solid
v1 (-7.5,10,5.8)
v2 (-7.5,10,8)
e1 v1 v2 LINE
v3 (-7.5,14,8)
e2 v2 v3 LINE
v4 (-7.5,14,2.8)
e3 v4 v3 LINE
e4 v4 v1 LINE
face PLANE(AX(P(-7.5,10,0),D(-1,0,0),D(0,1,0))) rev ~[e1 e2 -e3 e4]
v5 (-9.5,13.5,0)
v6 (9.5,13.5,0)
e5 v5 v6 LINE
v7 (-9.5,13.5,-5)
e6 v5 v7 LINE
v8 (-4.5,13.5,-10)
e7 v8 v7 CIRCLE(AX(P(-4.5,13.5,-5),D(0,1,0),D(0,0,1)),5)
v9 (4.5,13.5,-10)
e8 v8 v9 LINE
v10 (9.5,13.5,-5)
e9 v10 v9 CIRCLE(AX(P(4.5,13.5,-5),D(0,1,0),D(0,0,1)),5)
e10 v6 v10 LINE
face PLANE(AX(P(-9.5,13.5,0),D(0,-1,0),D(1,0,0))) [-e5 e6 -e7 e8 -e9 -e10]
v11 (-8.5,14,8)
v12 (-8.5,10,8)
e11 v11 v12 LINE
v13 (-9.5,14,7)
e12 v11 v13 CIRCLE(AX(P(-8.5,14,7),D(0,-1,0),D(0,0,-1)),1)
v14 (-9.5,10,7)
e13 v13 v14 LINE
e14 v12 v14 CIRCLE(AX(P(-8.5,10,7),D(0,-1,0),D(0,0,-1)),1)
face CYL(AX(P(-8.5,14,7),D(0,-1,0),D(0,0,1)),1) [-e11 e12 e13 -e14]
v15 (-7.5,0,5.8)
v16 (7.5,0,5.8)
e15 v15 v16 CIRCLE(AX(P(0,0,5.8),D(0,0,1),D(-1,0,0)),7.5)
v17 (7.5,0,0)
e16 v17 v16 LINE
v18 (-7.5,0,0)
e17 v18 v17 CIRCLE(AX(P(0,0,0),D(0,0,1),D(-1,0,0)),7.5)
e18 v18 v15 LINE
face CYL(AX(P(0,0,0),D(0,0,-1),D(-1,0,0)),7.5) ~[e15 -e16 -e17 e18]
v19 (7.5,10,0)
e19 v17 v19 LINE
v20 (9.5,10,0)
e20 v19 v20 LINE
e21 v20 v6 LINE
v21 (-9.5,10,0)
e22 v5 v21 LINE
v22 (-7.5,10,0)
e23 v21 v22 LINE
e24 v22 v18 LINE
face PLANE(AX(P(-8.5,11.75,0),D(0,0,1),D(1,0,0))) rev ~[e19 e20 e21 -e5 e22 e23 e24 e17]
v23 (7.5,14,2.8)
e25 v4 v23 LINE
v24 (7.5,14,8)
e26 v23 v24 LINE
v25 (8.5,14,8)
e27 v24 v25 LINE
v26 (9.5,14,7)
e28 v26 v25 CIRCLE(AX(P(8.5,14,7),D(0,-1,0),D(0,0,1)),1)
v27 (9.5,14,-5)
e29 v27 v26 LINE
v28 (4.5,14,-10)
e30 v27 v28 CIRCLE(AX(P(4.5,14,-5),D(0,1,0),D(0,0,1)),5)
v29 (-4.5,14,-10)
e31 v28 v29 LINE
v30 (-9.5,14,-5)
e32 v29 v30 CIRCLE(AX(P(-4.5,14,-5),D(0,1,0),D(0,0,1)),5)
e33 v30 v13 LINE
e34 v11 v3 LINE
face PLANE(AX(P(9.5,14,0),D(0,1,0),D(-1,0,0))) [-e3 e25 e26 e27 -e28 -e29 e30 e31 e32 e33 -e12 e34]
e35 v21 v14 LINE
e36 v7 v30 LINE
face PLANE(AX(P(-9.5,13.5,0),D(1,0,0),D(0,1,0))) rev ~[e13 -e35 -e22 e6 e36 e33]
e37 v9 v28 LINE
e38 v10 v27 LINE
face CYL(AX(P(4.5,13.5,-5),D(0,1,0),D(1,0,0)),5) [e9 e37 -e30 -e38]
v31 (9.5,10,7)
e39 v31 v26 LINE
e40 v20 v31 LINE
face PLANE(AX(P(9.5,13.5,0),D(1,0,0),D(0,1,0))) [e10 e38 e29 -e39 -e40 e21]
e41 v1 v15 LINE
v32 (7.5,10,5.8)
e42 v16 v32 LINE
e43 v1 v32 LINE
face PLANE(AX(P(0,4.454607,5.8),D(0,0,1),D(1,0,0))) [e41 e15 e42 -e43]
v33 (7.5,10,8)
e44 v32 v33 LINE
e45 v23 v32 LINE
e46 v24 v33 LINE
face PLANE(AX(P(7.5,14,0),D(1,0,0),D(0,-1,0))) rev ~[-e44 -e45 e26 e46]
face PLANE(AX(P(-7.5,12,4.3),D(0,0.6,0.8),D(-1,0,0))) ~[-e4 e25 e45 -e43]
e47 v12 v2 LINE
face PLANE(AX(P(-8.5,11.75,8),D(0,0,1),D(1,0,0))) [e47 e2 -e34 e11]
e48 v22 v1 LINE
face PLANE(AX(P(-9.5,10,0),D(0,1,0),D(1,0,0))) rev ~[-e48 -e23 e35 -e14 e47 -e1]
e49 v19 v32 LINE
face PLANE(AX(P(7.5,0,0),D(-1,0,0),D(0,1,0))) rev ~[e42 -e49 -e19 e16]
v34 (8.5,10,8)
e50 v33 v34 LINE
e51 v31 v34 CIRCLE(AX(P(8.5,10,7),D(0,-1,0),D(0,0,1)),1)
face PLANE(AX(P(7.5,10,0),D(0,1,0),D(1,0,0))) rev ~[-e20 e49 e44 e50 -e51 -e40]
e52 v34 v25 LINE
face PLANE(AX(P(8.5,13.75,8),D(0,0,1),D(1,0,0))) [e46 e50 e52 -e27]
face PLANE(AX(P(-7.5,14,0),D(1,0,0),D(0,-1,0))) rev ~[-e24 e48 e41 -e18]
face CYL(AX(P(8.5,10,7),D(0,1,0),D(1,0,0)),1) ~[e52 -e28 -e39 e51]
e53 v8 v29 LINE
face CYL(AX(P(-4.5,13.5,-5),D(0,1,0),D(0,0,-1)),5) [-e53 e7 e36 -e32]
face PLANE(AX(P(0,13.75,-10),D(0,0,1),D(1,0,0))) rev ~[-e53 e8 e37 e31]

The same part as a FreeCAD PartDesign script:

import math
import FreeCAD as App
import Part
import Sketcher


def edges_at(feature, points):
    """Names of the edges that pass closest to the given points."""
    edges = feature.Shape.Edges
    near = lambda p: min(range(len(edges)), key=lambda i: edges[i].distToShape(Part.Vertex(*p))[0])
    return sorted({f"Edge{near(p) + 1}" for p in points})

doc = App.newDocument("Part")
params = doc.addObject("Spreadsheet::Sheet", "Params")
for row, (alias, value) in enumerate([
    ("sketch1_radius", "7.5 mm"),
    ("sketch1_height", "14 mm"),
    ("pad1_length", "5.8 mm"),
    ("chamfer_size", "3 mm"),
    ("chamfer_size2", "4 mm"),
    ("sketch2_width", "2 mm"),
    ("sketch2_height", "4 mm"),
    ("pad2_length", "8 mm"),
    ("sketch3_width", "19 mm"),
    ("sketch3_height", "0.5 mm"),
    ("pad3_length", "10 mm"),
    ("fillet_radius", "1 mm"),
    ("fillet2_radius", "5 mm"),
], start=1):
    params.set(f"A{row}", alias)
    params.set(f"B{row}", "=" + value)
    params.setAlias(f"B{row}", alias)

body = doc.addObject("PartDesign::Body", "Body")

sketch1 = body.newObject("Sketcher::SketchObject", "Sketch")
sketch1.AttachmentSupport = (doc.getObject("XY_Plane"), [""])
sketch1.MapMode = "FlatFace"
sketch1.addGeometry(Part.ArcOfCircle(Part.Circle(App.Vector(0, 0, 0), App.Vector(0, 0, 1), 8), math.radians(180), math.radians(360)), False)
sketch1.addGeometry(Part.LineSegment(App.Vector(8, 0, 0), App.Vector(8, 14, 0)), False)
sketch1.addGeometry(Part.LineSegment(App.Vector(8, 14, 0), App.Vector(-8, 14, 0)), False)
sketch1.addGeometry(Part.LineSegment(App.Vector(-8, 14, 0), App.Vector(-8, 0, 0)), False)
sketch1.addConstraint(Sketcher.Constraint("Tangent", 0, 2, 1, 1))
sketch1.addConstraint(Sketcher.Constraint("Coincident", 1, 2, 2, 1))
sketch1.addConstraint(Sketcher.Constraint("Coincident", 2, 2, 3, 1))
sketch1.addConstraint(Sketcher.Constraint("Tangent", 3, 2, 0, 1))
sketch1.addConstraint(Sketcher.Constraint("Vertical", 1))
sketch1.addConstraint(Sketcher.Constraint("Horizontal", 2))
sketch1.addConstraint(Sketcher.Constraint("Vertical", 3))
sketch1.addConstraint(Sketcher.Constraint("Coincident", 0, 3, -1, 1))
sketch1.addConstraint(Sketcher.Constraint("Radius", 0, 7.5))
sketch1.addConstraint(Sketcher.Constraint("DistanceY", 1, 1, 1, 2, 14.0))
sketch1.setExpression("Constraints[8]", "Params.sketch1_radius")
sketch1.setExpression("Constraints[9]", "Params.sketch1_height")
pad1 = body.newObject("PartDesign::Pad", "Pad")
pad1.Profile = sketch1
pad1.setExpression("Length", "Params.pad1_length")
doc.recompute()

chamfer = body.newObject("PartDesign::Chamfer", "Chamfer")
chamfer.Base = (pad1, edges_at(pad1, [(0, 14, 5.8)]))
chamfer.ChamferType = "Two distances"
chamfer.setExpression("Size", "Params.chamfer_size")
chamfer.setExpression("Size2", "Params.chamfer_size2")

sketch2 = body.newObject("Sketcher::SketchObject", "Sketch001")
sketch2.AttachmentSupport = (doc.getObject("XY_Plane"), [""])
sketch2.MapMode = "FlatFace"
sketch2.addGeometry(Part.LineSegment(App.Vector(-9.5, 10, 0), App.Vector(-7.5, 10, 0)), False)
sketch2.addGeometry(Part.LineSegment(App.Vector(-7.5, 10, 0), App.Vector(-7.5, 14, 0)), False)
sketch2.addGeometry(Part.LineSegment(App.Vector(-7.5, 14, 0), App.Vector(-9.5, 14, 0)), False)
sketch2.addGeometry(Part.LineSegment(App.Vector(-9.5, 14, 0), App.Vector(-9.5, 10, 0)), False)
sketch2.addGeometry(Part.LineSegment(App.Vector(7.5, 14, 0), App.Vector(7.5, 10, 0)), False)
sketch2.addGeometry(Part.LineSegment(App.Vector(7.5, 10, 0), App.Vector(9.5, 10, 0)), False)
sketch2.addGeometry(Part.LineSegment(App.Vector(9.5, 10, 0), App.Vector(9.5, 14, 0)), False)
sketch2.addGeometry(Part.LineSegment(App.Vector(9.5, 14, 0), App.Vector(7.5, 14, 0)), False)
sketch2.addConstraint(Sketcher.Constraint("Coincident", 0, 2, 1, 1))
sketch2.addConstraint(Sketcher.Constraint("Coincident", 1, 2, 2, 1))
sketch2.addConstraint(Sketcher.Constraint("Coincident", 2, 2, 3, 1))
sketch2.addConstraint(Sketcher.Constraint("Coincident", 3, 2, 0, 1))
sketch2.addConstraint(Sketcher.Constraint("Coincident", 4, 2, 5, 1))
sketch2.addConstraint(Sketcher.Constraint("Coincident", 5, 2, 6, 1))
sketch2.addConstraint(Sketcher.Constraint("Coincident", 6, 2, 7, 1))
sketch2.addConstraint(Sketcher.Constraint("Coincident", 7, 2, 4, 1))
sketch2.addConstraint(Sketcher.Constraint("Horizontal", 0))
sketch2.addConstraint(Sketcher.Constraint("Vertical", 1))
sketch2.addConstraint(Sketcher.Constraint("Horizontal", 2))
sketch2.addConstraint(Sketcher.Constraint("Vertical", 3))
sketch2.addConstraint(Sketcher.Constraint("Vertical", 4))
sketch2.addConstraint(Sketcher.Constraint("Horizontal", 5))
sketch2.addConstraint(Sketcher.Constraint("Vertical", 6))
sketch2.addConstraint(Sketcher.Constraint("Horizontal", 7))
sketch2.addConstraint(Sketcher.Constraint("Symmetric", 0, 2, 4, 2, -2))
sketch2.addConstraint(Sketcher.Constraint("Symmetric", 2, 2, 6, 2, -2))
sketch2.addConstraint(Sketcher.Constraint("DistanceX", 0, 1, 0, 2, 2.0))
sketch2.addConstraint(Sketcher.Constraint("DistanceY", 1, 1, 1, 2, 4.0))
sketch2.addConstraint(Sketcher.Constraint("DistanceY", -1, 1, 0, 2, 10.0))
sketch2.addConstraint(Sketcher.Constraint("DistanceX", 0, 2, 4, 2, 15.0))
sketch2.setExpression("Constraints[18]", "Params.sketch2_width")
sketch2.setExpression("Constraints[19]", "Params.sketch2_height")
pad2 = body.newObject("PartDesign::Pad", "Pad001")
pad2.Profile = sketch2
pad2.setExpression("Length", "Params.pad2_length")

sketch3 = body.newObject("Sketcher::SketchObject", "Sketch002")
sketch3.AttachmentSupport = (doc.getObject("XY_Plane"), [""])
sketch3.MapMode = "FlatFace"
sketch3.addGeometry(Part.LineSegment(App.Vector(9.5, 13.5, 0), App.Vector(9.5, 14, 0)), False)
sketch3.addGeometry(Part.LineSegment(App.Vector(9.5, 14, 0), App.Vector(-9.5, 14, 0)), False)
sketch3.addGeometry(Part.LineSegment(App.Vector(-9.5, 14, 0), App.Vector(-9.5, 13.5, 0)), False)
sketch3.addGeometry(Part.LineSegment(App.Vector(-9.5, 13.5, 0), App.Vector(9.5, 13.5, 0)), False)
sketch3.addConstraint(Sketcher.Constraint("Coincident", 0, 2, 1, 1))
sketch3.addConstraint(Sketcher.Constraint("Coincident", 1, 2, 2, 1))
sketch3.addConstraint(Sketcher.Constraint("Coincident", 2, 2, 3, 1))
sketch3.addConstraint(Sketcher.Constraint("Coincident", 3, 2, 0, 1))
sketch3.addConstraint(Sketcher.Constraint("Vertical", 0))
sketch3.addConstraint(Sketcher.Constraint("Horizontal", 1))
sketch3.addConstraint(Sketcher.Constraint("Vertical", 2))
sketch3.addConstraint(Sketcher.Constraint("Horizontal", 3))
sketch3.addConstraint(Sketcher.Constraint("DistanceX", 1, 2, 1, 1, 19.0))
sketch3.addConstraint(Sketcher.Constraint("DistanceY", 0, 1, 0, 2, 0.5))
sketch3.addConstraint(Sketcher.Constraint("DistanceY", -1, 1, 0, 2, 14.0))
sketch3.addConstraint(Sketcher.Constraint("DistanceX", -1, 1, 0, 2, 9.5))
sketch3.setExpression("Constraints[8]", "Params.sketch3_width")
sketch3.setExpression("Constraints[9]", "Params.sketch3_height")
pad3 = body.newObject("PartDesign::Pad", "Pad002")
pad3.Profile = sketch3
pad3.setExpression("Length", "Params.pad3_length")
pad3.Reversed = True
doc.recompute()

fillet = body.newObject("PartDesign::Fillet", "Fillet")
fillet.Base = (pad3, edges_at(pad3, [(-9.5, 12, 8), (9.5, 12, 8)]))
fillet.setExpression("Radius", "Params.fillet_radius")
doc.recompute()

fillet2 = body.newObject("PartDesign::Fillet", "Fillet001")
fillet2.Base = (fillet, edges_at(fillet, [(9.5, 13.75, -10), (-9.5, 13.75, -10)]))
fillet2.setExpression("Radius", "Params.fillet2_radius")

doc.recompute()
